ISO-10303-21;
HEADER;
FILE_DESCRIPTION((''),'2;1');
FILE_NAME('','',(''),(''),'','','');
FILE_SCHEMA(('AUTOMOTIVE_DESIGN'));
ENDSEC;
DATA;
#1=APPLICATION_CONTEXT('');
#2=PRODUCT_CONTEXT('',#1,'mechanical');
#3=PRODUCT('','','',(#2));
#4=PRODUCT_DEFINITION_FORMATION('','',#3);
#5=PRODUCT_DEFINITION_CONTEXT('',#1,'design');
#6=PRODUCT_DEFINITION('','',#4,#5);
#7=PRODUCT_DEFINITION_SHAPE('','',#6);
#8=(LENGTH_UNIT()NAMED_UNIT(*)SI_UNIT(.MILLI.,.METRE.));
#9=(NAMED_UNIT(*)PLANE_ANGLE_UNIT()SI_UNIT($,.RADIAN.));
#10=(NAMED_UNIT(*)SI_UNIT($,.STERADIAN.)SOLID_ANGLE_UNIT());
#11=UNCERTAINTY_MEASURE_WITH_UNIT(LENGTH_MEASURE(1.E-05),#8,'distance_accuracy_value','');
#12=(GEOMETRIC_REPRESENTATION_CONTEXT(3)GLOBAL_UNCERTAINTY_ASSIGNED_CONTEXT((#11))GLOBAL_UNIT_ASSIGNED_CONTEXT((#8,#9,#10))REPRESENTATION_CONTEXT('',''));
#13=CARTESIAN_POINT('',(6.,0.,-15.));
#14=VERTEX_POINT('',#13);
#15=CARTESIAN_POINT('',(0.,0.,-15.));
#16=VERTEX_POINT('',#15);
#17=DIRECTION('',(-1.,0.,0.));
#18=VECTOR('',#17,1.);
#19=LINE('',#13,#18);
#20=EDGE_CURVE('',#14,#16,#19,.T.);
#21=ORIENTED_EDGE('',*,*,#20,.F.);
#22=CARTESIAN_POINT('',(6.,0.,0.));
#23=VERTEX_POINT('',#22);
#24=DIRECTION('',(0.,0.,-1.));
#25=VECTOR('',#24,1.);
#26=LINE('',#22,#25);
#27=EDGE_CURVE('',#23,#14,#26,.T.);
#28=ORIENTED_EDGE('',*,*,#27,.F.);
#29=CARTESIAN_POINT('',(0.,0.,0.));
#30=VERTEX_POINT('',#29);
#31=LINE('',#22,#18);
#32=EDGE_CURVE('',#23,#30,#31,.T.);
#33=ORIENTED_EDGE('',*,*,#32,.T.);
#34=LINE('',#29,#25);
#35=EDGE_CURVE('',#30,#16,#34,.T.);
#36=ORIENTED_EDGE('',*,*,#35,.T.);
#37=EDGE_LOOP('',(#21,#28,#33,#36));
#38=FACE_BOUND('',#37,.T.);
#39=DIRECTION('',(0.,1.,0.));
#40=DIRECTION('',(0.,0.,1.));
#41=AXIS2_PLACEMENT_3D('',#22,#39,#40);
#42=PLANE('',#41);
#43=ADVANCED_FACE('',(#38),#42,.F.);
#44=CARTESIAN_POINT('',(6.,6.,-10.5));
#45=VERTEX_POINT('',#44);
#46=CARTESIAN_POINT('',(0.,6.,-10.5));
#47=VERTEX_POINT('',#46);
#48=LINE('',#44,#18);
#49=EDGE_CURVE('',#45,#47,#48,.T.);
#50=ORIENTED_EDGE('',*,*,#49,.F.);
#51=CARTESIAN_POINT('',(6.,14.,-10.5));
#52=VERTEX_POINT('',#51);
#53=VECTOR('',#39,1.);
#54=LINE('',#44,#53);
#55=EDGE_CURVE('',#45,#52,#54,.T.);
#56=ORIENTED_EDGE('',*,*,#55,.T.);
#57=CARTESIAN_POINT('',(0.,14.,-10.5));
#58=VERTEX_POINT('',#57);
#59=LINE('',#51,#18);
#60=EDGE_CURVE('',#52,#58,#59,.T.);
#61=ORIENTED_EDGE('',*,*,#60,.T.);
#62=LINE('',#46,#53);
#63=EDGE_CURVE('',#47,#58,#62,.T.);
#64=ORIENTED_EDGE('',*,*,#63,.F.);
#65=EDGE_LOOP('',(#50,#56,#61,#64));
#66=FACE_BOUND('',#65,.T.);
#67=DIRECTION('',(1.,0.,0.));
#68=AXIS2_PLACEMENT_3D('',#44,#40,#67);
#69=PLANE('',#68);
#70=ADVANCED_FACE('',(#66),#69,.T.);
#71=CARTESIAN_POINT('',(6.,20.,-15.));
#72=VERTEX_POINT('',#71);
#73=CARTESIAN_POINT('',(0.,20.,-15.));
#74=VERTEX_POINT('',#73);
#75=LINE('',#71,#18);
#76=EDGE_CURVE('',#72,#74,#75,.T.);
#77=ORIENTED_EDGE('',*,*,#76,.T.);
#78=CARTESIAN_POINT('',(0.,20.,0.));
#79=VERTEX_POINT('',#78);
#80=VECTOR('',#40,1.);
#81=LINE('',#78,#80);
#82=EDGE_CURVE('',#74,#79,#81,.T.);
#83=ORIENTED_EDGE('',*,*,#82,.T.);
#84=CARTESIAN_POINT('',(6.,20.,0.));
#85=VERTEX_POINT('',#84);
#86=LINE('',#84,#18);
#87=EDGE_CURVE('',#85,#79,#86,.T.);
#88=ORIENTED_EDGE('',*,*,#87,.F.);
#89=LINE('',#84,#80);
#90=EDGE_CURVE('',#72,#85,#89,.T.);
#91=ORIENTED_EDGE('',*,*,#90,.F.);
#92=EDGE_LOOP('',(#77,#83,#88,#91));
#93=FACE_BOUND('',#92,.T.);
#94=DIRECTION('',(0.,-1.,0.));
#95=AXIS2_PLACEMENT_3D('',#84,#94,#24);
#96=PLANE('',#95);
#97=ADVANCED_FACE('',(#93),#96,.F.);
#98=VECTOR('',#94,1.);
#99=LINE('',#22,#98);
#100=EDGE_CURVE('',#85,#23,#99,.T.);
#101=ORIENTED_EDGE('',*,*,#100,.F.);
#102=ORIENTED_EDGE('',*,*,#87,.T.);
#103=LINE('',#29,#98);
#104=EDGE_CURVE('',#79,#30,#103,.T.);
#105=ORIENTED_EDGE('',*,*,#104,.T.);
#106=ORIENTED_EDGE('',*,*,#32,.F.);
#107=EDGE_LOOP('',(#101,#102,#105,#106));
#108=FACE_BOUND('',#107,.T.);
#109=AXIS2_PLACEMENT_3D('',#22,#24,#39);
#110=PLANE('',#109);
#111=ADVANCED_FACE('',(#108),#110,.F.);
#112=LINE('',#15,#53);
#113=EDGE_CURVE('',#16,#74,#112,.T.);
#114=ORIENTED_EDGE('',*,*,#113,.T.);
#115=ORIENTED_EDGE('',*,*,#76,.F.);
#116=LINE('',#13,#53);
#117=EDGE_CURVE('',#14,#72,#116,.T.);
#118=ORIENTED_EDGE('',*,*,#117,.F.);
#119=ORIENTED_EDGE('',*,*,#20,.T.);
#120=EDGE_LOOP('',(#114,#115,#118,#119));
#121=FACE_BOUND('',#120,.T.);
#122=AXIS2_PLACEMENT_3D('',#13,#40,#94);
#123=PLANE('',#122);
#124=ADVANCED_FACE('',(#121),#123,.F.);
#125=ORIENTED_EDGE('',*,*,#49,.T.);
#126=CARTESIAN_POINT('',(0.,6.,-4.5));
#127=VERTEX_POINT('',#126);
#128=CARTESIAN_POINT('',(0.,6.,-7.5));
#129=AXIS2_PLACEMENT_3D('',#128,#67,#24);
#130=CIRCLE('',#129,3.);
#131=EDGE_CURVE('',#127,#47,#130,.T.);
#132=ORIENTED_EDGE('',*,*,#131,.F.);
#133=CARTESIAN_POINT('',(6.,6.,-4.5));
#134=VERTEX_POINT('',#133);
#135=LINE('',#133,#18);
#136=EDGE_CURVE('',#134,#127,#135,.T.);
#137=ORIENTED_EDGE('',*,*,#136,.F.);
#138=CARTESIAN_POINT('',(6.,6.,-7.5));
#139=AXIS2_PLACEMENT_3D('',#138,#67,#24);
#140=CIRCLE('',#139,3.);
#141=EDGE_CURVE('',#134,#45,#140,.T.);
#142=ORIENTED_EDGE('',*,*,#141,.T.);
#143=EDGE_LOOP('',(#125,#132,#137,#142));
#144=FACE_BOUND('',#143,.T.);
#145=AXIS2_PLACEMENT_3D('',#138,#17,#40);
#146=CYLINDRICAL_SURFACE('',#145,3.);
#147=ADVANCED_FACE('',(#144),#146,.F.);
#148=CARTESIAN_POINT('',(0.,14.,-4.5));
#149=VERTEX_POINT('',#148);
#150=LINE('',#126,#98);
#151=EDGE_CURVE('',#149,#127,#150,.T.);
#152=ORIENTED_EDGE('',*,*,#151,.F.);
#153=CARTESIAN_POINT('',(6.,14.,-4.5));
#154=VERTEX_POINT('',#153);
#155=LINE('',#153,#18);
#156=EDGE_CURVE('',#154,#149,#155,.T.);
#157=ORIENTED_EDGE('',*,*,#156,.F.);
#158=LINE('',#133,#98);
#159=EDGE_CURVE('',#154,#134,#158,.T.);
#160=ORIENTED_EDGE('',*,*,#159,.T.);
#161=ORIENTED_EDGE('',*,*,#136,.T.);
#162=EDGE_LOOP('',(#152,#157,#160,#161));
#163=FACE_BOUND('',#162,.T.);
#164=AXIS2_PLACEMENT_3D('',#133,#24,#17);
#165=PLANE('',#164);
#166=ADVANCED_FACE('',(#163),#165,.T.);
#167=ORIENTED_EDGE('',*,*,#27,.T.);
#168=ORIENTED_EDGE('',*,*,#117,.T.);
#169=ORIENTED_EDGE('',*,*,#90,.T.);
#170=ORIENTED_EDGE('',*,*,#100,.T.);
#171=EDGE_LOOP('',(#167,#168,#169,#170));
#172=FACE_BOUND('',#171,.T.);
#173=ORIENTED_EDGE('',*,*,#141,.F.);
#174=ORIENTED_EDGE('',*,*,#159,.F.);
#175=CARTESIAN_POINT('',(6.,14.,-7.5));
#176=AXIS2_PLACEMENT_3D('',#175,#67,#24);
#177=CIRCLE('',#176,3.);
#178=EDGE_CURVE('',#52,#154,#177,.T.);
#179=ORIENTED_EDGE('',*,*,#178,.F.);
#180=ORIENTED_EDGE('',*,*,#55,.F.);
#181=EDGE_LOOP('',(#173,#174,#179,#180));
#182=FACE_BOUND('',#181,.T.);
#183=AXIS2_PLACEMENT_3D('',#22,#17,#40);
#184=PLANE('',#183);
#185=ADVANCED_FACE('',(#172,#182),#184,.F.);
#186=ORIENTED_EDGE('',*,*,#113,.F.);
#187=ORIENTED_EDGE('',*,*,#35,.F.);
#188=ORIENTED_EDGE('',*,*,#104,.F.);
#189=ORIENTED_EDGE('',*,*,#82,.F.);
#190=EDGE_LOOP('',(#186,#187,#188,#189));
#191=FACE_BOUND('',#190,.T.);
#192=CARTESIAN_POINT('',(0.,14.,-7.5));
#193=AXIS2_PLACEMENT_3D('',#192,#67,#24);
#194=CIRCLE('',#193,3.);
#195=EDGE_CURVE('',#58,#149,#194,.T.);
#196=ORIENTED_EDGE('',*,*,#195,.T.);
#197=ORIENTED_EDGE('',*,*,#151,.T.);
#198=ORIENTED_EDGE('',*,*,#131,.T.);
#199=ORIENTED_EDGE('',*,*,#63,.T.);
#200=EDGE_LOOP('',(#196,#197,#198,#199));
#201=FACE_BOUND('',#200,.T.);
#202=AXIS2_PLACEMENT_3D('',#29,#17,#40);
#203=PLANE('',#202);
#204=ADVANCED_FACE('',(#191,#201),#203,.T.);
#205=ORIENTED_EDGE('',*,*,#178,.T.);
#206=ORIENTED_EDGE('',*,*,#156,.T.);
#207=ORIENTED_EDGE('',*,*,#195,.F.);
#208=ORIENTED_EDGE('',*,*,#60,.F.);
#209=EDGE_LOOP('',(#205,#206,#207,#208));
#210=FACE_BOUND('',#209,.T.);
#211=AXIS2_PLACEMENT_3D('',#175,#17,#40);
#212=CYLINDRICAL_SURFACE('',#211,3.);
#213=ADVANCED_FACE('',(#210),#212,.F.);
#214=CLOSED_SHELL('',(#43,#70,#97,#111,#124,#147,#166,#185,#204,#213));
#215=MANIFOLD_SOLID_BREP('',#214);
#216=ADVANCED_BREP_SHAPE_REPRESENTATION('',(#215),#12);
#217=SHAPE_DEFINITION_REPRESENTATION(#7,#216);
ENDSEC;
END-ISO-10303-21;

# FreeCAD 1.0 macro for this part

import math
import FreeCAD as App
import Part
import Sketcher
from FreeCAD import Vector


def add_polygon(sketch, points):
    """Adds a closed chain of lines whose ends are joined by coincident constraints."""
    first, n = sketch.GeometryCount, len(points)
    for a, b in zip(points, points[1:] + points[:1]):
        sketch.addGeometry(Part.LineSegment(App.Vector(*a, 0), App.Vector(*b, 0)), False)
    for i in range(n):
        sketch.addConstraint(Sketcher.Constraint("Coincident", first + i, 2, first + (i + 1) % n, 1))

doc = App.newDocument("Part")
body = doc.addObject("PartDesign::Body", "Body")

# Sketch on YZ plane
sketch1 = body.newObject("Sketcher::SketchObject", "Sketch")
sketch1.AttachmentSupport = (doc.getObject("YZ_Plane"), [""])
sketch1.MapMode = "FlatFace"
add_polygon(sketch1, [(20, 0), (0, 0), (0, -15), (20, -15)])  # lines 0-3
sketch1.addGeometry(Part.ArcOfCircle(Part.Circle(Vector(6, -7.5, 0), Vector(0, 0, 1), 3), math.radians(90), math.radians(270)), False)  # 4
sketch1.addGeometry(Part.LineSegment(Vector(6, -4.5, 0), Vector(14, -4.5, 0)), False)  # 5
sketch1.addGeometry(Part.ArcOfCircle(Part.Circle(Vector(14, -7.5, 0), Vector(0, 0, 1), 3), math.radians(-90), math.radians(90)), False)  # 6
sketch1.addGeometry(Part.LineSegment(Vector(14, -10.5, 0), Vector(6, -10.5, 0)), False)  # 7
sketch1.addConstraint([
    Sketcher.Constraint("Tangent", 4, 1, 5, 1),
    Sketcher.Constraint("Tangent", 5, 2, 6, 2),
    Sketcher.Constraint("Tangent", 6, 1, 7, 1),
    Sketcher.Constraint("Tangent", 7, 2, 4, 2),
    Sketcher.Constraint("Horizontal", 0),
    Sketcher.Constraint("Vertical", 1),
    Sketcher.Constraint("Horizontal", 2),
    Sketcher.Constraint("Vertical", 3),
    Sketcher.Constraint("Horizontal", 5),
    Sketcher.Constraint("Horizontal", 7),
    Sketcher.Constraint("Coincident", 0, 2, -1, 1),
    Sketcher.Constraint("Radius", 4, 3.0),
    Sketcher.Constraint("DistanceX", 0, 2, 0, 1, 20.0),
    Sketcher.Constraint("DistanceX", 5, 1, 5, 2, 8.0),
    Sketcher.Constraint("DistanceY", 1, 2, 1, 1, 15.0),
    Sketcher.Constraint("DistanceX", -1, 1, 4, 3, 6.0),
    Sketcher.Constraint("DistanceY", 4, 3, -1, 1, 7.5),
])
pad1 = body.newObject("PartDesign::Pad", "Pad")
pad1.Profile = sketch1
pad1.Length = 6

doc.recompute()
